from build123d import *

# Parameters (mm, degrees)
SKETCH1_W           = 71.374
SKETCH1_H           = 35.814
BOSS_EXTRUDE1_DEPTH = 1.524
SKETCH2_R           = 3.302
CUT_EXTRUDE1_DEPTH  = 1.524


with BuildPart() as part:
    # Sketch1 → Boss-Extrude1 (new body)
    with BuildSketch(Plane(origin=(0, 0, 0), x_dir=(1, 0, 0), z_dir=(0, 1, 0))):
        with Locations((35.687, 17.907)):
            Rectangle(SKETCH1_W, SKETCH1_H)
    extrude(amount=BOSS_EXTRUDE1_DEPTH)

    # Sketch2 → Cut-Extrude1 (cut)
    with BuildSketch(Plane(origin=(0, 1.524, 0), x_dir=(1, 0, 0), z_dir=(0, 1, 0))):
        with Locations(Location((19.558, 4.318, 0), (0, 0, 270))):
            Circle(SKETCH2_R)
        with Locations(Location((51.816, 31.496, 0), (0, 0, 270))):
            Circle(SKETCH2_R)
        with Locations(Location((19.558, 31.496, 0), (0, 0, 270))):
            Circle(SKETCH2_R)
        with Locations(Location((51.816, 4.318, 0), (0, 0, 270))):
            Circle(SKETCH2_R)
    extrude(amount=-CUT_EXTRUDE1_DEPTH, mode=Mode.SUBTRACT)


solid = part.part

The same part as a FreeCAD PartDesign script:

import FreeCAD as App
import Part
import Sketcher

V = App.Vector
Q = App.Units.Quantity


def add_polygon(sketch, points):
    """Adds a closed chain of lines whose ends are joined by coincident constraints."""
    first, n = sketch.GeometryCount, len(points)
    for a, b in zip(points, points[1:] + points[:1]):
        sketch.addGeometry(Part.LineSegment(App.Vector(*a, 0), App.Vector(*b, 0)), False)
    for i in range(n):
        sketch.addConstraint(Sketcher.Constraint("Coincident", first + i, 2, first + (i + 1) % n, 1))

doc = App.newDocument("Part")
params = doc.addObject("Spreadsheet::Sheet", "Params")
for row, (alias, value) in enumerate([
    ("sketch1_width", "2.81 in"),
    ("sketch1_height", "1.41 in"),
    ("pad1_length", "0.06 in"),
    ("sketch2_diameter", "0.26 in"),
    ("pocket1_length", "0.06 in"),
], start=1):
    params.set(f"A{row}", alias)
    params.set(f"B{row}", "=" + value)
    params.setAlias(f"B{row}", alias)

body = doc.addObject("PartDesign::Body", "Body")

sketch1 = body.newObject("Sketcher::SketchObject", "Sketch")
sketch1.AttachmentSupport = (doc.getObject("XZ_Plane"), [""])
sketch1.MapMode = "FlatFace"
add_polygon(sketch1, [(0, -36), (0, 0), (71, 0), (71, -36)])
sketch1.addConstraint(Sketcher.Constraint("Vertical", 0))
sketch1.addConstraint(Sketcher.Constraint("Horizontal", 1))
sketch1.addConstraint(Sketcher.Constraint("Vertical", 2))
sketch1.addConstraint(Sketcher.Constraint("Horizontal", 3))
sketch1.addConstraint(Sketcher.Constraint("Coincident", 0, 2, -1, 1))
sketch1.addConstraint(Sketcher.Constraint("DistanceX", 1, 1, 1, 2, Q("2.81 in")))
sketch1.addConstraint(Sketcher.Constraint("DistanceY", 0, 1, 0, 2, Q("1.41 in")))
sketch1.setExpression("Constraints[9]", "Params.sketch1_width")
sketch1.setExpression("Constraints[10]", "Params.sketch1_height")
pad1 = body.newObject("PartDesign::Pad", "Pad")
pad1.Profile = sketch1
pad1.setExpression("Length", "Params.pad1_length")
pad1.Reversed = True

sketch2 = body.newObject("Sketcher::SketchObject", "Sketch001")
sketch2.AttachmentSupport = (doc.getObject("XZ_Plane"), [""])
sketch2.MapMode = "FlatFace"
sketch2.AttachmentOffset = App.Placement(V(0, 0, -0.06 * 25.4), App.Rotation())
sketch2.addGeometry(Part.Circle(V(19.6, -4.3, 0), V(0, 0, 1), 3.3), False)
sketch2.addGeometry(Part.Circle(V(51.8, -31.5, 0), V(0, 0, 1), 3.3), False)
sketch2.addGeometry(Part.Circle(V(19.6, -31.5, 0), V(0, 0, 1), 3.3), False)
sketch2.addGeometry(Part.Circle(V(51.8, -4.3, 0), V(0, 0, 1), 3.3), False)
sketch2.addConstraint(Sketcher.Constraint("Equal", 0, 1))
sketch2.addConstraint(Sketcher.Constraint("Equal", 1, 2))
sketch2.addConstraint(Sketcher.Constraint("Equal", 2, 3))
sketch2.addConstraint(Sketcher.Constraint("Horizontal", 1, 3, 2, 3))
sketch2.addConstraint(Sketcher.Constraint("Horizontal", 0, 3, 3, 3))
sketch2.addConstraint(Sketcher.Constraint("Vertical", 0, 3, 2, 3))
sketch2.addConstraint(Sketcher.Constraint("Vertical", 1, 3, 3, 3))
sketch2.addConstraint(Sketcher.Constraint("Diameter", 0, Q("0.26 in")))
sketch2.addConstraint(Sketcher.Constraint("DistanceX", -1, 1, 0, 3, Q("0.77 in")))
sketch2.addConstraint(Sketcher.Constraint("DistanceY", 0, 3, -1, 1, Q("0.17 in")))
sketch2.addConstraint(Sketcher.Constraint("DistanceX", -1, 1, 1, 3, Q("2.04 in")))
sketch2.addConstraint(Sketcher.Constraint("DistanceY", 1, 3, -1, 1, Q("1.24 in")))
sketch2.setExpression("Constraints[7]", "Params.sketch2_diameter")
pocket1 = body.newObject("PartDesign::Pocket", "Pocket")
pocket1.Profile = sketch2
pocket1.setExpression("Length", "Params.pocket1_length")
pocket1.Reversed = True

doc.recompute()
